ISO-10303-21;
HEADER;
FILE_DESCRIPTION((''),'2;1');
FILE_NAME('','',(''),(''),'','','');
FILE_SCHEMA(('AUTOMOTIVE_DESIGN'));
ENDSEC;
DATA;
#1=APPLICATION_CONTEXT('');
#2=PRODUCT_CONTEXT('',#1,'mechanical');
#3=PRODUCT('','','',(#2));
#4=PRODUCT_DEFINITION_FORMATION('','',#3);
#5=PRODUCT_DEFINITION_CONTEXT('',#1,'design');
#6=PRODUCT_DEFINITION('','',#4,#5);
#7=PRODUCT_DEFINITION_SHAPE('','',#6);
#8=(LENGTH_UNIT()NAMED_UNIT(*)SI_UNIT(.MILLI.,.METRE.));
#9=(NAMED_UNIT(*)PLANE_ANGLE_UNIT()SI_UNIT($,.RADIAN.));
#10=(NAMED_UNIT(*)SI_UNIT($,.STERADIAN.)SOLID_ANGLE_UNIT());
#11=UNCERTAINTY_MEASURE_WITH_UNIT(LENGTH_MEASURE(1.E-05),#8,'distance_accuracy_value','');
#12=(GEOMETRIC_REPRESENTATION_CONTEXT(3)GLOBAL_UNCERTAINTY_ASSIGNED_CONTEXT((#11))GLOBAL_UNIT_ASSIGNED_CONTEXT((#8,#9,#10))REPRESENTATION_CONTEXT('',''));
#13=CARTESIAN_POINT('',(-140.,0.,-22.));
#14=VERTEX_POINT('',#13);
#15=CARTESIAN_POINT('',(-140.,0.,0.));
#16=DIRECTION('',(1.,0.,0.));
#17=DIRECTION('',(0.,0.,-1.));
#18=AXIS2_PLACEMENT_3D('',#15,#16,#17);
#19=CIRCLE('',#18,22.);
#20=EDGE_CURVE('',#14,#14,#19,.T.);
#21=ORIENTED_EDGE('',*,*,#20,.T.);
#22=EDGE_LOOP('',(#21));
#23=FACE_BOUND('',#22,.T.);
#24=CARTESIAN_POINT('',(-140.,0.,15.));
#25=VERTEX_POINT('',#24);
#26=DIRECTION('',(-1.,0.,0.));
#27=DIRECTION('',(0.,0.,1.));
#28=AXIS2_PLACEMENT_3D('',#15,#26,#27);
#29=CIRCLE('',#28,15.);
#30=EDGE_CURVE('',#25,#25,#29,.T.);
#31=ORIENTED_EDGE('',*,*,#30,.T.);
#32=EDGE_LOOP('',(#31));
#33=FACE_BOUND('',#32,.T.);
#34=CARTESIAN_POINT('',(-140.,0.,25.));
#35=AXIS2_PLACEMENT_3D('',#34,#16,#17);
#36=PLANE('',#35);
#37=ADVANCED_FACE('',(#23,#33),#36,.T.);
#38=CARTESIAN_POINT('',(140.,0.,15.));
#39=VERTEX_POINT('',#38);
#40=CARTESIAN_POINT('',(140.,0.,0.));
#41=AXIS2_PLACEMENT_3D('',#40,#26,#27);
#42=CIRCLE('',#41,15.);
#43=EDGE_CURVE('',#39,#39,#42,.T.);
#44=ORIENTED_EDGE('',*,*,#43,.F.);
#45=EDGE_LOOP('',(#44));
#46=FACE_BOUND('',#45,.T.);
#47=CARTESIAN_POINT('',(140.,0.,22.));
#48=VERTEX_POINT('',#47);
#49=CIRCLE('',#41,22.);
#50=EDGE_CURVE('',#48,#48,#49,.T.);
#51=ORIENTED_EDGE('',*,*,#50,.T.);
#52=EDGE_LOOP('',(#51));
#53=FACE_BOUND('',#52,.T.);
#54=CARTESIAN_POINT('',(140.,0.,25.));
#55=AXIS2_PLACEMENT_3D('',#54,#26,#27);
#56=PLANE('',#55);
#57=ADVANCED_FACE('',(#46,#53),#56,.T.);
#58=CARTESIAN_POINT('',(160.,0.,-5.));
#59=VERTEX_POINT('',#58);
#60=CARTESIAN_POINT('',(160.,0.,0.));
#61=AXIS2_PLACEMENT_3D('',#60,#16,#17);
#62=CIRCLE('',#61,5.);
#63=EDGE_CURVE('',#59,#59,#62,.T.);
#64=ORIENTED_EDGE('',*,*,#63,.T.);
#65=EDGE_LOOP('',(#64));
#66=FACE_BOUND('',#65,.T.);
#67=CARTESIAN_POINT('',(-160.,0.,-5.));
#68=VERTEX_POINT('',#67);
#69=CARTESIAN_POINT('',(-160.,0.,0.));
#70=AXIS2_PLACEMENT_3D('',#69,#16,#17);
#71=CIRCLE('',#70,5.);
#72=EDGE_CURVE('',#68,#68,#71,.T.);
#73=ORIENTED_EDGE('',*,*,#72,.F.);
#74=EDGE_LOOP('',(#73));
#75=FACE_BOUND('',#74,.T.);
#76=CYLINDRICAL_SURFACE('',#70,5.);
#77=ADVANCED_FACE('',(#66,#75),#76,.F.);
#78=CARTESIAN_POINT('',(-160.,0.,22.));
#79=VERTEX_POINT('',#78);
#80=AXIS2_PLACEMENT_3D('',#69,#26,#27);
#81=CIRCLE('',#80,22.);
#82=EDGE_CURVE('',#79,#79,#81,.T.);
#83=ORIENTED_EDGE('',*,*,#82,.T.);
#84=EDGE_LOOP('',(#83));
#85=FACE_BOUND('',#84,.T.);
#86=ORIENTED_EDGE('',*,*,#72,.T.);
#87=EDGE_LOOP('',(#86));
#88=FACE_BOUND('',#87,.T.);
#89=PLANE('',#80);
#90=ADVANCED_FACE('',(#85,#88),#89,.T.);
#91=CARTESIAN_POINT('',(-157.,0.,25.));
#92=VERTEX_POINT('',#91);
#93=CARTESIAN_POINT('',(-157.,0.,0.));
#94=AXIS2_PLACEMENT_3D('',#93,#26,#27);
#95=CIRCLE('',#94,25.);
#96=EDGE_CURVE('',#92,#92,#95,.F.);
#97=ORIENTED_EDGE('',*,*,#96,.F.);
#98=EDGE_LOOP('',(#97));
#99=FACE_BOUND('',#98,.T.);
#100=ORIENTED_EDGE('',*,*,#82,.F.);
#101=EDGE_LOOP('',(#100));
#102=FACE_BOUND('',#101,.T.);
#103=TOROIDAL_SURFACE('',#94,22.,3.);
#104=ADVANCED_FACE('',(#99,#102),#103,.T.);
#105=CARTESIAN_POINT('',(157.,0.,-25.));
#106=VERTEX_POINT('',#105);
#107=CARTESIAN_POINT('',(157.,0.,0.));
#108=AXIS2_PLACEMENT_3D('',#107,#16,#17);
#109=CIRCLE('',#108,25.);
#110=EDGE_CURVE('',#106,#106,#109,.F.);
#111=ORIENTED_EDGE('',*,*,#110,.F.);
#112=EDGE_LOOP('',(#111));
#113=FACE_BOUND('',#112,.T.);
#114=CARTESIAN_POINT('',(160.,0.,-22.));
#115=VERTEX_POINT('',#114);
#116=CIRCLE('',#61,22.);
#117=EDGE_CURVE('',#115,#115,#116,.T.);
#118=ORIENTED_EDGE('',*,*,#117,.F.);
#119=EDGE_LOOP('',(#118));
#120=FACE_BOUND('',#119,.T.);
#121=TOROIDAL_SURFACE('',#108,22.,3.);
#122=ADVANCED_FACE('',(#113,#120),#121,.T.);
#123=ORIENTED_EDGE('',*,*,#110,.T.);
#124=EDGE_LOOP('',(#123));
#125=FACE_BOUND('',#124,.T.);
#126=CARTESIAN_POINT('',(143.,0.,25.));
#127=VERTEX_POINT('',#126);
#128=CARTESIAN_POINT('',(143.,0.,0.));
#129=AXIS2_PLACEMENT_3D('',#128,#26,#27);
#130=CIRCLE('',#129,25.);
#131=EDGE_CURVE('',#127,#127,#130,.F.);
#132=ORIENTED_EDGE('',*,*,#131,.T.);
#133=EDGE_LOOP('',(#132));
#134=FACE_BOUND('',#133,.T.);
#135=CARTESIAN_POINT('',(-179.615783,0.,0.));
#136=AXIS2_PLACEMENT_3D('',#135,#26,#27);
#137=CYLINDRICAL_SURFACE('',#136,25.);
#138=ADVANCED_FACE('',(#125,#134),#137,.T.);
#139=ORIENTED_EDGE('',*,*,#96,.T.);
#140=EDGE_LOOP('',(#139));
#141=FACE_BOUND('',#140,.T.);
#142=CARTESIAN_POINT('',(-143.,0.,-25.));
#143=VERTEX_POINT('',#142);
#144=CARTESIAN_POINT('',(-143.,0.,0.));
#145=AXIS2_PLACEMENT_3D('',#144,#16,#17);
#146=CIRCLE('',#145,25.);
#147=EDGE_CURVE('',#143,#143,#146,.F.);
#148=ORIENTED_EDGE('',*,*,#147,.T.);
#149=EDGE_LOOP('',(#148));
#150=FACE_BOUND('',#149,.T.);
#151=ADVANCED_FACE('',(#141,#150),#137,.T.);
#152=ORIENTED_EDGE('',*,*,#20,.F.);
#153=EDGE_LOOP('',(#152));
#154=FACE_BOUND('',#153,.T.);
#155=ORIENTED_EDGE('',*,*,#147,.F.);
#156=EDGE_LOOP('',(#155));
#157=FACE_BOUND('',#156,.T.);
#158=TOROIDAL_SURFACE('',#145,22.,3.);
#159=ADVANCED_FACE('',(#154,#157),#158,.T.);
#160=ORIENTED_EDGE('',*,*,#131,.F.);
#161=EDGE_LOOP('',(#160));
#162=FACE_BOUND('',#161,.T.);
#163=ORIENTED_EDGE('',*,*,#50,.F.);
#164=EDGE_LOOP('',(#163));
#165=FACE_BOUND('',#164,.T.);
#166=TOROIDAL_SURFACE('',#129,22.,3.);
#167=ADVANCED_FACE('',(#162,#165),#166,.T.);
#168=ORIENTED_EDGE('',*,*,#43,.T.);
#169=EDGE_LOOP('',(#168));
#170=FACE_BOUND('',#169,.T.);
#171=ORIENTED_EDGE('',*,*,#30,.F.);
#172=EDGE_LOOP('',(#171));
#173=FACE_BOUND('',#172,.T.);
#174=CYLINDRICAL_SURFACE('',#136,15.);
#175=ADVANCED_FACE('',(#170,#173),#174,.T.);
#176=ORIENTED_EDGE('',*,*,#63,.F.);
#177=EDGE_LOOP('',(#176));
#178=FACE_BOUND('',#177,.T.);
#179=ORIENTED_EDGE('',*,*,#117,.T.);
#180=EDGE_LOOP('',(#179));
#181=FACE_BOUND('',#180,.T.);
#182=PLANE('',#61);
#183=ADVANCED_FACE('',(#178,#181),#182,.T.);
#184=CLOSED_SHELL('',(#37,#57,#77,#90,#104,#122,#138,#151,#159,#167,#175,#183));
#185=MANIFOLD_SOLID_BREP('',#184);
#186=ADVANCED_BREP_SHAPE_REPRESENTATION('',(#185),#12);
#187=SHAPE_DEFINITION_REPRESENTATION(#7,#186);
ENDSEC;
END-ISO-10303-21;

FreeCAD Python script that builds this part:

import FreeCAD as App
import Part
import Sketcher


def edges_at(feature, points):
    """Names of the edges that pass closest to the given points."""
    edges = feature.Shape.Edges
    near = lambda p: min(range(len(edges)), key=lambda i: edges[i].distToShape(Part.Vertex(*p))[0])
    return sorted({f"Edge{near(p) + 1}" for p in points})

doc = App.newDocument("Part")
params = doc.addObject("Spreadsheet::Sheet", "Params")
for row, (alias, value) in enumerate([
    ("sketch1_width", "320 mm"),
    ("sketch1_width2", "20 mm"),
    ("sketch1_height", "25 mm"),
    ("sketch1_height2", "10 mm"),
    ("revolution_angle", "360 deg"),
    ("fillet_radius", "3 mm"),
    ("sketch2_diameter", "10 mm"),
], start=1):
    params.set(f"A{row}", alias)
    params.set(f"B{row}", "=" + value)
    params.setAlias(f"B{row}", alias)

body = doc.addObject("PartDesign::Body", "Body")

# Sketch on XZ plane
sketch1 = body.newObject("Sketcher::SketchObject", "Sketch")
sketch1.AttachmentSupport = (doc.getObject("XZ_Plane"), [""])
sketch1.MapMode = "FlatFace"
sketch1.addGeometry(Part.LineSegment(App.Vector(160, 0, 0), App.Vector(-160, 0, 0)), False)
sketch1.addGeometry(Part.LineSegment(App.Vector(-160, 0, 0), App.Vector(-160, 25, 0)), False)
sketch1.addGeometry(Part.LineSegment(App.Vector(-160, 25, 0), App.Vector(-140, 25, 0)), False)
sketch1.addGeometry(Part.LineSegment(App.Vector(-140, 25, 0), App.Vector(-140, 15, 0)), False)
sketch1.addGeometry(Part.LineSegment(App.Vector(-140, 15, 0), App.Vector(140, 15, 0)), False)
sketch1.addGeometry(Part.LineSegment(App.Vector(140, 15, 0), App.Vector(140, 25, 0)), False)
sketch1.addGeometry(Part.LineSegment(App.Vector(140, 25, 0), App.Vector(160, 25, 0)), False)
sketch1.addGeometry(Part.LineSegment(App.Vector(160, 25, 0), App.Vector(160, 0, 0)), False)
sketch1.addConstraint(Sketcher.Constraint("Coincident", 0, 2, 1, 1))
sketch1.addConstraint(Sketcher.Constraint("Coincident", 1, 2, 2, 1))
sketch1.addConstraint(Sketcher.Constraint("Coincident", 2, 2, 3, 1))
sketch1.addConstraint(Sketcher.Constraint("Coincident", 3, 2, 4, 1))
sketch1.addConstraint(Sketcher.Constraint("Coincident", 4, 2, 5, 1))
sketch1.addConstraint(Sketcher.Constraint("Coincident", 5, 2, 6, 1))
sketch1.addConstraint(Sketcher.Constraint("Coincident", 6, 2, 7, 1))
sketch1.addConstraint(Sketcher.Constraint("Coincident", 7, 2, 0, 1))
sketch1.addConstraint(Sketcher.Constraint("Horizontal", 0))
sketch1.addConstraint(Sketcher.Constraint("Vertical", 1))
sketch1.addConstraint(Sketcher.Constraint("Horizontal", 2))
sketch1.addConstraint(Sketcher.Constraint("Vertical", 3))
sketch1.addConstraint(Sketcher.Constraint("Horizontal", 4))
sketch1.addConstraint(Sketcher.Constraint("Vertical", 5))
sketch1.addConstraint(Sketcher.Constraint("Horizontal", 6))
sketch1.addConstraint(Sketcher.Constraint("Vertical", 7))
sketch1.addConstraint(Sketcher.Constraint("Symmetric", 0, 2, 7, 2, -1, 1))
sketch1.addConstraint(Sketcher.Constraint("Symmetric", 2, 2, 5, 2, -2))
sketch1.addConstraint(Sketcher.Constraint("DistanceX", 0, 2, 0, 1, 320.0))
sketch1.addConstraint(Sketcher.Constraint("DistanceX", 2, 1, 2, 2, 20.0))
sketch1.addConstraint(Sketcher.Constraint("DistanceY", 1, 1, 1, 2, 25.0))
sketch1.addConstraint(Sketcher.Constraint("DistanceY", 3, 2, 3, 1, 10.0))
sketch1.setExpression("Constraints[18]", "Params.sketch1_width")
sketch1.setExpression("Constraints[19]", "Params.sketch1_width2")
sketch1.setExpression("Constraints[20]", "Params.sketch1_height")
sketch1.setExpression("Constraints[21]", "Params.sketch1_height2")
revolution = body.newObject("PartDesign::Revolution", "Revolution")
revolution.Profile = sketch1
revolution.ReferenceAxis = (sketch1, ["H_Axis"])
revolution.setExpression("Angle", "Params.revolution_angle")
doc.recompute()

fillet = body.newObject("PartDesign::Fillet", "Fillet")
fillet.Base = (revolution, edges_at(revolution, [
    (140, 0, -25),
    (160, 0, -25),
    (-160, 0, -25),
    (-140, 0, -25),
]))
fillet.setExpression("Radius", "Params.fillet_radius")

# Sketch on YZ plane
sketch2 = body.newObject("Sketcher::SketchObject", "Sketch001")
sketch2.AttachmentSupport = (doc.getObject("YZ_Plane"), [""])
sketch2.MapMode = "FlatFace"
sketch2.AttachmentOffset = App.Placement(App.Vector(0, 0, 160), App.Rotation())
sketch2.addGeometry(Part.Circle(App.Vector(0, 0, 0), App.Vector(0, 0, 1), 5), False)
sketch2.addConstraint(Sketcher.Constraint("Coincident", 0, 3, -1, 1))
sketch2.addConstraint(Sketcher.Constraint("Diameter", 0, 10.0))
sketch2.setExpression("Constraints[1]", "Params.sketch2_diameter")
pocket1 = body.newObject("PartDesign::Pocket", "Pocket")
pocket1.Profile = sketch2
pocket1.Type = "ThroughAll"

doc.recompute()
